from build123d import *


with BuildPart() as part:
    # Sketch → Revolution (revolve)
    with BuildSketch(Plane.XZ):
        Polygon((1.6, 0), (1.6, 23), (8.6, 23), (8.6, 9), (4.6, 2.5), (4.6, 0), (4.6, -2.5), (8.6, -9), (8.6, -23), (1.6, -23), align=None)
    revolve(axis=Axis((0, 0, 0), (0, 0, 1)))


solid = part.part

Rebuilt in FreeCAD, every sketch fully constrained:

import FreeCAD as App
import Part
import Sketcher


def add_polygon(sketch, points):
    """Adds a closed chain of lines whose ends are joined by coincident constraints."""
    first, n = sketch.GeometryCount, len(points)
    for a, b in zip(points, points[1:] + points[:1]):
        sketch.addGeometry(Part.LineSegment(App.Vector(*a, 0), App.Vector(*b, 0)), False)
    for i in range(n):
        sketch.addConstraint(Sketcher.Constraint("Coincident", first + i, 2, first + (i + 1) % n, 1))

doc = App.newDocument("Part")
body = doc.addObject("PartDesign::Body", "Body")

# Sketch on XZ plane
sketch1 = body.newObject("Sketcher::SketchObject", "Sketch")
sketch1.AttachmentSupport = (doc.getObject("XZ_Plane"), [""])
sketch1.MapMode = "FlatFace"
add_polygon(sketch1, [(1.6, 23), (1.6, -23), (8.6, -23), (8.6, -9), (4.6, -2.5), (4.6, 2.5), (8.6, 9), (8.6, 23)])  # lines 0-7
sketch1.addConstraint([
    Sketcher.Constraint("Vertical", 0),
    Sketcher.Constraint("Horizontal", 1),
    Sketcher.Constraint("Vertical", 2),
    Sketcher.Constraint("Vertical", 4),
    Sketcher.Constraint("Vertical", 6),
    Sketcher.Constraint("Horizontal", 7),
    Sketcher.Constraint("Symmetric", 2, 2, 5, 2, -1),
    Sketcher.Constraint("Equal", 2, 6),
    Sketcher.Constraint("Equal", 3, 5),
    Sketcher.Constraint("DistanceX", 1, 1, 1, 2, 7.0),
    Sketcher.Constraint("DistanceY", 0, 2, 0, 1, 46.0),
    Sketcher.Constraint("DistanceY", 2, 1, 2, 2, 14.0),
    Sketcher.Constraint("DistanceY", 4, 1, 4, 2, 5.0),
    Sketcher.Constraint("DistanceX", 3, 2, 2, 2, 4.0),
    Sketcher.Constraint("DistanceX", -1, 1, 0, 2, 1.6),
])
revolution = body.newObject("PartDesign::Revolution", "Revolution")
revolution.Profile = sketch1
revolution.ReferenceAxis = (sketch1, ["V_Axis"])
revolution.Angle = 360

doc.recompute()
